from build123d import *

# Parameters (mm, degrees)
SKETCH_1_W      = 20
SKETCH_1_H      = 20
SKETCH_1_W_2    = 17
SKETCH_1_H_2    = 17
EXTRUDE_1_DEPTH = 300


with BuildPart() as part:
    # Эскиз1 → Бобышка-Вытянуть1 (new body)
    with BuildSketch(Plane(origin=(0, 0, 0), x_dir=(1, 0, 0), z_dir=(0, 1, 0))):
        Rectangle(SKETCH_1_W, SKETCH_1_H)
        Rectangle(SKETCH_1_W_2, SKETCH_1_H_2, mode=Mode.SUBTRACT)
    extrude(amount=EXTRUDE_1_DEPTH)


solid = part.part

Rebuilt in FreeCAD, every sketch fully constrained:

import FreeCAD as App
import Part
import Sketcher
from FreeCAD import Vector


def add_polygon(sketch, points):
    """Adds a closed chain of lines whose ends are joined by coincident constraints."""
    first, n = sketch.GeometryCount, len(points)
    for a, b in zip(points, points[1:] + points[:1]):
        sketch.addGeometry(Part.LineSegment(App.Vector(*a, 0), App.Vector(*b, 0)), False)
    for i in range(n):
        sketch.addConstraint(Sketcher.Constraint("Coincident", first + i, 2, first + (i + 1) % n, 1))

doc = App.newDocument("Part")
params = doc.addObject("Spreadsheet::Sheet", "Params")
for row, (alias, value) in enumerate([
    ("sketch1_width", "20 mm"),
    ("sketch1_width2", "17 mm"),
    ("pad1_length", "300 mm"),
], start=1):
    params.set(f"A{row}", alias)
    params.set(f"B{row}", "=" + value)
    params.setAlias(f"B{row}", alias)

body = doc.addObject("PartDesign::Body", "Body")

# Sketch on XZ plane
sketch1 = body.newObject("Sketcher::SketchObject", "Sketch")
sketch1.AttachmentSupport = (doc.getObject("XZ_Plane"), [""])
sketch1.MapMode = "FlatFace"
add_polygon(sketch1, [(-10, -10), (-10, 10), (10, 10), (10, -10)])  # lines 0-3
add_polygon(sketch1, [(8, 8), (-8, 8), (-8, -8), (8, -8)])  # lines 4-7
sketch1.addConstraint([
    Sketcher.Constraint("Vertical", 0),
    Sketcher.Constraint("Horizontal", 1),
    Sketcher.Constraint("Vertical", 2),
    Sketcher.Constraint("Horizontal", 3),
    Sketcher.Constraint("Horizontal", 4),
    Sketcher.Constraint("Vertical", 5),
    Sketcher.Constraint("Horizontal", 6),
    Sketcher.Constraint("Vertical", 7),
    Sketcher.Constraint("Symmetric", 0, 2, 2, 2, -1, 1),
    Sketcher.Constraint("Symmetric", 4, 2, 6, 2, -1, 1),
    Sketcher.Constraint("Equal", 3, 0),
    Sketcher.Constraint("Equal", 6, 5),
    Sketcher.Constraint("DistanceX", 1, 1, 1, 2, 20.0),
    Sketcher.Constraint("DistanceX", 4, 2, 4, 1, 17.0),
])
sketch1.setExpression("Constraints[20]", "Params.sketch1_width")
sketch1.setExpression("Constraints[21]", "Params.sketch1_width2")
pad1 = body.newObject("PartDesign::Pad", "Pad")
pad1.Profile = sketch1
pad1.setExpression("Length", "Params.pad1_length")
pad1.Reversed = True

doc.recompute()
